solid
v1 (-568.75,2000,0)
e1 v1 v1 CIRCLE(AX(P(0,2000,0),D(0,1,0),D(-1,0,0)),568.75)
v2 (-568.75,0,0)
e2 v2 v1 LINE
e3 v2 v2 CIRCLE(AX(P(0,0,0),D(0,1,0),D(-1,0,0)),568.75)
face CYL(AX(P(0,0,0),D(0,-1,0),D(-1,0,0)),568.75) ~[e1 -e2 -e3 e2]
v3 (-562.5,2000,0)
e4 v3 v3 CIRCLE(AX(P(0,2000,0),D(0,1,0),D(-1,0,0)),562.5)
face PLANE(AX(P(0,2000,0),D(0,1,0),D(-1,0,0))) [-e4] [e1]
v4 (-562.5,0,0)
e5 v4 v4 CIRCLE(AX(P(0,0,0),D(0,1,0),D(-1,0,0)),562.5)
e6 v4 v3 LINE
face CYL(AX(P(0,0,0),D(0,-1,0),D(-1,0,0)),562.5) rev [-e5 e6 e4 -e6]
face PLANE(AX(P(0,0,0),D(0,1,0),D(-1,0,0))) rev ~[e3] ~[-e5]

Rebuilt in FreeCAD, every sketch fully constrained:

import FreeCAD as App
import Part
import Sketcher

V = App.Vector

doc = App.newDocument("Part")
body = doc.addObject("PartDesign::Body", "Body")

sketch1 = body.newObject("Sketcher::SketchObject", "Sketch")
sketch1.AttachmentSupport = (doc.getObject("XZ_Plane"), [""])
sketch1.MapMode = "FlatFace"
sketch1.addGeometry([
    Part.Circle(V(0, 0, 0), V(0, 0, 1), 568.75),
    Part.Circle(V(0, 0, 0), V(0, 0, 1), 562.5),
], False)
sketch1.addConstraint([
    Sketcher.Constraint("Coincident", 0, 3, -1, 1),
    Sketcher.Constraint("Coincident", 1, 3, -1, 1),
    Sketcher.Constraint("Diameter", 1, 1125.0),
    Sketcher.Constraint("Diameter", 0, 1137.5),
])
pad1 = body.newObject("PartDesign::Pad", "Pad")
pad1.Profile = sketch1
pad1.Length = 2000
pad1.Reversed = True

doc.recompute()
